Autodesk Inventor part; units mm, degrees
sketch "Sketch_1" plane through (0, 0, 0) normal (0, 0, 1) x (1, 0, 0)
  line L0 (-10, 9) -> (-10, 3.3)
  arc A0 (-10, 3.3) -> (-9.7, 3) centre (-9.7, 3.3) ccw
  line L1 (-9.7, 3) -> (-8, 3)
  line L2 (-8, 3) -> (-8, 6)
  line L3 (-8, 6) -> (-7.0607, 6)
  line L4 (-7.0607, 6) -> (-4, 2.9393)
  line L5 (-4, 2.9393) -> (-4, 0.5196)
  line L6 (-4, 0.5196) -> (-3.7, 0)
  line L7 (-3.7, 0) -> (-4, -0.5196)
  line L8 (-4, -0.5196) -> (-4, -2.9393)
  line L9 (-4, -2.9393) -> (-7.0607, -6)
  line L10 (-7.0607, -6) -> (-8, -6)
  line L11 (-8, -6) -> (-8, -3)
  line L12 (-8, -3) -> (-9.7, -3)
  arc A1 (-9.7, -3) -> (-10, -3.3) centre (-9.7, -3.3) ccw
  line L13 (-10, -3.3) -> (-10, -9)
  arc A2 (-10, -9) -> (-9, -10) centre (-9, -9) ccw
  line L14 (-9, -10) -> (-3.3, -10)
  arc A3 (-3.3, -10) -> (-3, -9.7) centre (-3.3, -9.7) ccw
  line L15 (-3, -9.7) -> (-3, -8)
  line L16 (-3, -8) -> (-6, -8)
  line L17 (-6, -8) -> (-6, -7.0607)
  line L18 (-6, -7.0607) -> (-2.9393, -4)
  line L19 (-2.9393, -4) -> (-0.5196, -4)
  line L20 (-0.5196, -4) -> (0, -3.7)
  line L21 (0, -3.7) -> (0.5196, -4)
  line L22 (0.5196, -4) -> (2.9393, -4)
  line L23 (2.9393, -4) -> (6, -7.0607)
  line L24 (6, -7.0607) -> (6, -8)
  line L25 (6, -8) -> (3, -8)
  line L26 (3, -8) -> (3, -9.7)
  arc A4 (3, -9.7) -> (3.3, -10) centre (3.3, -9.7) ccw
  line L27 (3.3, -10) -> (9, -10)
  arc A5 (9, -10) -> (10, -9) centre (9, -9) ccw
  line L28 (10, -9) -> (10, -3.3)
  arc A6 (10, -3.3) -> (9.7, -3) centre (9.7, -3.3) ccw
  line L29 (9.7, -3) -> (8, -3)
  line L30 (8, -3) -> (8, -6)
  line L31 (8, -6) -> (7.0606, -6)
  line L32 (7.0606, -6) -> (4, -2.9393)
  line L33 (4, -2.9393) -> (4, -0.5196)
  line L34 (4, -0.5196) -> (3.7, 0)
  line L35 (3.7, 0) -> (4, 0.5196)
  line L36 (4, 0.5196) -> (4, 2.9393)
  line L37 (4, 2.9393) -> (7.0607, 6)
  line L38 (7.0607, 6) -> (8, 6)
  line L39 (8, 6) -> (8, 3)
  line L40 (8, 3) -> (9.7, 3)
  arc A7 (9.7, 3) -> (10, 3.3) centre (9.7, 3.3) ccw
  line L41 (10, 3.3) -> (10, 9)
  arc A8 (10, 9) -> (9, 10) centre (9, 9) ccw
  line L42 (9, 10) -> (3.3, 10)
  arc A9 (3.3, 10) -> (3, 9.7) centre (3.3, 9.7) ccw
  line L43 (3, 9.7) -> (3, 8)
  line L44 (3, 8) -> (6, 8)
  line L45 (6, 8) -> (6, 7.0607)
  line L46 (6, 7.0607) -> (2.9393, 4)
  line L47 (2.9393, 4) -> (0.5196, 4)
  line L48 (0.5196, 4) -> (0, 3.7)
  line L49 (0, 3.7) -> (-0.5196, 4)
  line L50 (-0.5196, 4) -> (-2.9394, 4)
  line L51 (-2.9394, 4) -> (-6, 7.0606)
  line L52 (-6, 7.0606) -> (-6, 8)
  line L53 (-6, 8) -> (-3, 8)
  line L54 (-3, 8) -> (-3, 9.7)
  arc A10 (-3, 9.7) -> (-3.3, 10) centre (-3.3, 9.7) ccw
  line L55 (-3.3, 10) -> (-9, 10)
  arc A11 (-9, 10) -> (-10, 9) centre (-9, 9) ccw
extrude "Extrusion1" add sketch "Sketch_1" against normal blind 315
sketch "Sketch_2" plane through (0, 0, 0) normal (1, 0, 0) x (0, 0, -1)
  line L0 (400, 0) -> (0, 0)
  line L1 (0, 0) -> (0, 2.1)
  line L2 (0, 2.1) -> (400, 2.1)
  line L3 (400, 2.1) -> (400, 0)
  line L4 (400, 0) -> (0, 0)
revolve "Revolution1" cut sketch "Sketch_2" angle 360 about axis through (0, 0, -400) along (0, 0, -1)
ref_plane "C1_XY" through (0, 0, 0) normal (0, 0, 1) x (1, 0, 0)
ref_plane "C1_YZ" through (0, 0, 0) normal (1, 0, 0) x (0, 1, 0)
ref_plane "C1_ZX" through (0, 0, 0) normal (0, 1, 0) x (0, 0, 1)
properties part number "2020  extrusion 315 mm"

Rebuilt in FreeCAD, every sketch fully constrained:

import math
import FreeCAD as App
import Part
import Sketcher
Q = App.Units.Quantity


def add_polygon(sketch, points):
    """Adds a closed chain of lines whose ends are joined by coincident constraints."""
    first, n = sketch.GeometryCount, len(points)
    for a, b in zip(points, points[1:] + points[:1]):
        sketch.addGeometry(Part.LineSegment(App.Vector(*a, 0), App.Vector(*b, 0)), False)
    for i in range(n):
        sketch.addConstraint(Sketcher.Constraint("Coincident", first + i, 2, first + (i + 1) % n, 1))

doc = App.newDocument("Part")
params = doc.addObject("Spreadsheet::Sheet", "Params")
for row, (alias, value) in enumerate([
    ("sketch1_radius", "1 mm"),
    ("sketch1_radius2", "0.3 mm"),
    ("sketch1_width", "3 mm"),
    ("sketch1_width2", "1.7 mm"),
    ("sketch1_width3", "5.7 mm"),
    ("pad1_length", "315 mm"),
    ("sketch2_height", "400 mm"),
    ("sketch2_width", "2.1 mm"),
    ("groove_angle", "360 deg"),
], start=1):
    params.set(f"A{row}", alias)
    params.set(f"B{row}", "=" + value)
    params.setAlias(f"B{row}", alias)

body = doc.addObject("PartDesign::Body", "Body")

sketch1 = body.newObject("Sketcher::SketchObject", "Sketch")
sketch1.AttachmentSupport = (doc.getObject("XY_Plane"), [""])
sketch1.MapMode = "FlatFace"
sketch1.addGeometry([
    Part.ArcOfCircle(Part.Circle(App.Vector(-9, 9, 0), App.Vector(0, 0, 1), 1), math.radians(90), math.radians(180)),
    Part.LineSegment(App.Vector(-10, 9, 0), App.Vector(-10, 3.3, 0)),
    Part.ArcOfCircle(Part.Circle(App.Vector(-9.7, 3.3, 0), App.Vector(0, 0, 1), 0.3), math.radians(180), math.radians(270)),
    Part.LineSegment(App.Vector(-9.7, 3, 0), App.Vector(-8, 3, 0)),
    Part.LineSegment(App.Vector(-8, 3, 0), App.Vector(-8, 6, 0)),
    Part.LineSegment(App.Vector(-8, 6, 0), App.Vector(-7.0607, 6, 0)),
    Part.LineSegment(App.Vector(-7.0607, 6, 0), App.Vector(-4, 2.9393, 0)),
    Part.LineSegment(App.Vector(-4, 2.9393, 0), App.Vector(-4, 0.5196, 0)),
    Part.LineSegment(App.Vector(-4, 0.5196, 0), App.Vector(-3.7, 0, 0)),
    Part.LineSegment(App.Vector(-3.7, 0, 0), App.Vector(-4, -0.5196, 0)),
    Part.LineSegment(App.Vector(-4, -0.5196, 0), App.Vector(-4, -2.9393, 0)),
    Part.LineSegment(App.Vector(-4, -2.9393, 0), App.Vector(-7.0607, -6, 0)),
    Part.LineSegment(App.Vector(-7.0607, -6, 0), App.Vector(-8, -6, 0)),
    Part.LineSegment(App.Vector(-8, -6, 0), App.Vector(-8, -3, 0)),
    Part.LineSegment(App.Vector(-8, -3, 0), App.Vector(-9.7, -3, 0)),
    Part.ArcOfCircle(Part.Circle(App.Vector(-9.7, -3.3, 0), App.Vector(0, 0, 1), 0.3), math.radians(90), math.radians(180)),
    Part.LineSegment(App.Vector(-10, -3.3, 0), App.Vector(-10, -9, 0)),
    Part.ArcOfCircle(Part.Circle(App.Vector(-9, -9, 0), App.Vector(0, 0, 1), 1), math.radians(180), math.radians(270)),
    Part.LineSegment(App.Vector(-9, -10, 0), App.Vector(-3.3, -10, 0)),
    Part.ArcOfCircle(Part.Circle(App.Vector(-3.3, -9.7, 0), App.Vector(0, 0, 1), 0.3), math.radians(-90), math.radians(0)),
    Part.LineSegment(App.Vector(-3, -9.7, 0), App.Vector(-3, -8, 0)),
    Part.LineSegment(App.Vector(-3, -8, 0), App.Vector(-6, -8, 0)),
    Part.LineSegment(App.Vector(-6, -8, 0), App.Vector(-6, -7.0607, 0)),
    Part.LineSegment(App.Vector(-6, -7.0607, 0), App.Vector(-2.9393, -4, 0)),
    Part.LineSegment(App.Vector(-2.9393, -4, 0), App.Vector(-0.5196, -4, 0)),
    Part.LineSegment(App.Vector(-0.5196, -4, 0), App.Vector(0, -3.7, 0)),
    Part.LineSegment(App.Vector(0, -3.7, 0), App.Vector(0.5196, -4, 0)),
    Part.LineSegment(App.Vector(0.5196, -4, 0), App.Vector(2.9393, -4, 0)),
    Part.LineSegment(App.Vector(2.9393, -4, 0), App.Vector(6, -7.0607, 0)),
    Part.LineSegment(App.Vector(6, -7.0607, 0), App.Vector(6, -8, 0)),
    Part.LineSegment(App.Vector(6, -8, 0), App.Vector(3, -8, 0)),
    Part.LineSegment(App.Vector(3, -8, 0), App.Vector(3, -9.7, 0)),
    Part.ArcOfCircle(Part.Circle(App.Vector(3.3, -9.7, 0), App.Vector(0, 0, 1), 0.3), math.radians(180), math.radians(270)),
    Part.LineSegment(App.Vector(3.3, -10, 0), App.Vector(9, -10, 0)),
    Part.ArcOfCircle(Part.Circle(App.Vector(9, -9, 0), App.Vector(0, 0, 1), 1), math.radians(-90), math.radians(0)),
    Part.LineSegment(App.Vector(10, -9, 0), App.Vector(10, -3.3, 0)),
    Part.ArcOfCircle(Part.Circle(App.Vector(9.7, -3.3, 0), App.Vector(0, 0, 1), 0.3), math.radians(0), math.radians(90)),
    Part.LineSegment(App.Vector(9.7, -3, 0), App.Vector(8, -3, 0)),
    Part.LineSegment(App.Vector(8, -3, 0), App.Vector(8, -6, 0)),
    Part.LineSegment(App.Vector(8, -6, 0), App.Vector(7.0606, -6, 0)),
    Part.LineSegment(App.Vector(7.0606, -6, 0), App.Vector(4, -2.9393, 0)),
    Part.LineSegment(App.Vector(4, -2.9393, 0), App.Vector(4, -0.5196, 0)),
    Part.LineSegment(App.Vector(4, -0.5196, 0), App.Vector(3.7, 0, 0)),
    Part.LineSegment(App.Vector(3.7, 0, 0), App.Vector(4, 0.5196, 0)),
    Part.LineSegment(App.Vector(4, 0.5196, 0), App.Vector(4, 2.9393, 0)),
    Part.LineSegment(App.Vector(4, 2.9393, 0), App.Vector(7.0607, 6, 0)),
    Part.LineSegment(App.Vector(7.0607, 6, 0), App.Vector(8, 6, 0)),
    Part.LineSegment(App.Vector(8, 6, 0), App.Vector(8, 3, 0)),
    Part.LineSegment(App.Vector(8, 3, 0), App.Vector(9.7, 3, 0)),
    Part.ArcOfCircle(Part.Circle(App.Vector(9.7, 3.3, 0), App.Vector(0, 0, 1), 0.3), math.radians(-90), math.radians(0)),
    Part.LineSegment(App.Vector(10, 3.3, 0), App.Vector(10, 9, 0)),
    Part.ArcOfCircle(Part.Circle(App.Vector(9, 9, 0), App.Vector(0, 0, 1), 1), math.radians(0), math.radians(90)),
    Part.LineSegment(App.Vector(9, 10, 0), App.Vector(3.3, 10, 0)),
    Part.ArcOfCircle(Part.Circle(App.Vector(3.3, 9.7, 0), App.Vector(0, 0, 1), 0.3), math.radians(90), math.radians(180)),
    Part.LineSegment(App.Vector(3, 9.7, 0), App.Vector(3, 8, 0)),
    Part.LineSegment(App.Vector(3, 8, 0), App.Vector(6, 8, 0)),
    Part.LineSegment(App.Vector(6, 8, 0), App.Vector(6, 7.0607, 0)),
    Part.LineSegment(App.Vector(6, 7.0607, 0), App.Vector(2.9393, 4, 0)),
    Part.LineSegment(App.Vector(2.9393, 4, 0), App.Vector(0.5196, 4, 0)),
    Part.LineSegment(App.Vector(0.5196, 4, 0), App.Vector(0, 3.7, 0)),
    Part.LineSegment(App.Vector(0, 3.7, 0), App.Vector(-0.5196, 4, 0)),
    Part.LineSegment(App.Vector(-0.5196, 4, 0), App.Vector(-2.9394, 4, 0)),
    Part.LineSegment(App.Vector(-2.9394, 4, 0), App.Vector(-6, 7.0606, 0)),
    Part.LineSegment(App.Vector(-6, 7.0606, 0), App.Vector(-6, 8, 0)),
    Part.LineSegment(App.Vector(-6, 8, 0), App.Vector(-3, 8, 0)),
    Part.LineSegment(App.Vector(-3, 8, 0), App.Vector(-3, 9.7, 0)),
    Part.ArcOfCircle(Part.Circle(App.Vector(-3.3, 9.7, 0), App.Vector(0, 0, 1), 0.3), math.radians(0), math.radians(90)),
    Part.LineSegment(App.Vector(-3.3, 10, 0), App.Vector(-9, 10, 0)),
], False)
sketch1.addConstraint([
    Sketcher.Constraint("Tangent", 0, 2, 1, 1),
    Sketcher.Constraint("Tangent", 1, 2, 2, 1),
    Sketcher.Constraint("Tangent", 2, 2, 3, 1),
    Sketcher.Constraint("Coincident", 3, 2, 4, 1),
    Sketcher.Constraint("Coincident", 4, 2, 5, 1),
    Sketcher.Constraint("Coincident", 5, 2, 6, 1),
    Sketcher.Constraint("Coincident", 6, 2, 7, 1),
    Sketcher.Constraint("Coincident", 7, 2, 8, 1),
    Sketcher.Constraint("Coincident", 8, 2, 9, 1),
    Sketcher.Constraint("Coincident", 9, 2, 10, 1),
    Sketcher.Constraint("Coincident", 10, 2, 11, 1),
    Sketcher.Constraint("Coincident", 11, 2, 12, 1),
    Sketcher.Constraint("Coincident", 12, 2, 13, 1),
    Sketcher.Constraint("Coincident", 13, 2, 14, 1),
    Sketcher.Constraint("Tangent", 14, 2, 15, 1),
    Sketcher.Constraint("Tangent", 15, 2, 16, 1),
    Sketcher.Constraint("Tangent", 16, 2, 17, 1),
    Sketcher.Constraint("Tangent", 17, 2, 18, 1),
    Sketcher.Constraint("Tangent", 18, 2, 19, 1),
    Sketcher.Constraint("Tangent", 19, 2, 20, 1),
    Sketcher.Constraint("Coincident", 20, 2, 21, 1),
    Sketcher.Constraint("Coincident", 21, 2, 22, 1),
    Sketcher.Constraint("Coincident", 22, 2, 23, 1),
    Sketcher.Constraint("Coincident", 23, 2, 24, 1),
    Sketcher.Constraint("Coincident", 24, 2, 25, 1),
    Sketcher.Constraint("Coincident", 25, 2, 26, 1),
    Sketcher.Constraint("Coincident", 26, 2, 27, 1),
    Sketcher.Constraint("Coincident", 27, 2, 28, 1),
    Sketcher.Constraint("Coincident", 28, 2, 29, 1),
    Sketcher.Constraint("Coincident", 29, 2, 30, 1),
    Sketcher.Constraint("Coincident", 30, 2, 31, 1),
    Sketcher.Constraint("Tangent", 31, 2, 32, 1),
    Sketcher.Constraint("Tangent", 32, 2, 33, 1),
    Sketcher.Constraint("Tangent", 33, 2, 34, 1),
    Sketcher.Constraint("Tangent", 34, 2, 35, 1),
    Sketcher.Constraint("Tangent", 35, 2, 36, 1),
    Sketcher.Constraint("Tangent", 36, 2, 37, 1),
    Sketcher.Constraint("Coincident", 37, 2, 38, 1),
    Sketcher.Constraint("Coincident", 38, 2, 39, 1),
    Sketcher.Constraint("Coincident", 39, 2, 40, 1),
    Sketcher.Constraint("Coincident", 40, 2, 41, 1),
    Sketcher.Constraint("Coincident", 41, 2, 42, 1),
    Sketcher.Constraint("Coincident", 42, 2, 43, 1),
    Sketcher.Constraint("Coincident", 43, 2, 44, 1),
    Sketcher.Constraint("Coincident", 44, 2, 45, 1),
    Sketcher.Constraint("Coincident", 45, 2, 46, 1),
    Sketcher.Constraint("Coincident", 46, 2, 47, 1),
    Sketcher.Constraint("Coincident", 47, 2, 48, 1),
    Sketcher.Constraint("Tangent", 48, 2, 49, 1),
    Sketcher.Constraint("Tangent", 49, 2, 50, 1),
    Sketcher.Constraint("Tangent", 50, 2, 51, 1),
    Sketcher.Constraint("Tangent", 51, 2, 52, 1),
    Sketcher.Constraint("Tangent", 52, 2, 53, 1),
    Sketcher.Constraint("Tangent", 53, 2, 54, 1),
    Sketcher.Constraint("Coincident", 54, 2, 55, 1),
    Sketcher.Constraint("Coincident", 55, 2, 56, 1),
    Sketcher.Constraint("Coincident", 56, 2, 57, 1),
    Sketcher.Constraint("Coincident", 57, 2, 58, 1),
    Sketcher.Constraint("Coincident", 58, 2, 59, 1),
    Sketcher.Constraint("Coincident", 59, 2, 60, 1),
    Sketcher.Constraint("Coincident", 60, 2, 61, 1),
    Sketcher.Constraint("Coincident", 61, 2, 62, 1),
    Sketcher.Constraint("Coincident", 62, 2, 63, 1),
    Sketcher.Constraint("Coincident", 63, 2, 64, 1),
    Sketcher.Constraint("Coincident", 64, 2, 65, 1),
    Sketcher.Constraint("Tangent", 65, 2, 66, 1),
    Sketcher.Constraint("Tangent", 66, 2, 67, 1),
    Sketcher.Constraint("Tangent", 67, 2, 0, 1),
    Sketcher.Constraint("Vertical", 1),
    Sketcher.Constraint("Horizontal", 3),
    Sketcher.Constraint("Vertical", 4),
    Sketcher.Constraint("Horizontal", 5),
    Sketcher.Constraint("Vertical", 7),
    Sketcher.Constraint("Vertical", 10),
    Sketcher.Constraint("Horizontal", 12),
    Sketcher.Constraint("Vertical", 13),
    Sketcher.Constraint("Horizontal", 14),
    Sketcher.Constraint("Vertical", 16),
    Sketcher.Constraint("Horizontal", 18),
    Sketcher.Constraint("Vertical", 20),
    Sketcher.Constraint("Horizontal", 21),
    Sketcher.Constraint("Vertical", 22),
    Sketcher.Constraint("Horizontal", 24),
    Sketcher.Constraint("Horizontal", 27),
    Sketcher.Constraint("Vertical", 29),
    Sketcher.Constraint("Horizontal", 30),
    Sketcher.Constraint("Vertical", 31),
    Sketcher.Constraint("Horizontal", 33),
    Sketcher.Constraint("Vertical", 35),
    Sketcher.Constraint("Horizontal", 37),
    Sketcher.Constraint("Vertical", 38),
    Sketcher.Constraint("Horizontal", 39),
    Sketcher.Constraint("Vertical", 41),
    Sketcher.Constraint("Vertical", 44),
    Sketcher.Constraint("Horizontal", 46),
    Sketcher.Constraint("Vertical", 47),
    Sketcher.Constraint("Horizontal", 48),
    Sketcher.Constraint("Vertical", 50),
    Sketcher.Constraint("Horizontal", 52),
    Sketcher.Constraint("Vertical", 54),
    Sketcher.Constraint("Horizontal", 55),
    Sketcher.Constraint("Vertical", 56),
    Sketcher.Constraint("Horizontal", 58),
    Sketcher.Constraint("Horizontal", 61),
    Sketcher.Constraint("Vertical", 63),
    Sketcher.Constraint("Horizontal", 64),
    Sketcher.Constraint("Vertical", 65),
    Sketcher.Constraint("Horizontal", 67),
    Sketcher.Constraint("Equal", 2, 15),
    Sketcher.Constraint("Equal", 0, 17),
    Sketcher.Constraint("Equal", 15, 19),
    Sketcher.Constraint("Equal", 19, 32),
    Sketcher.Constraint("Equal", 17, 34),
    Sketcher.Constraint("Equal", 32, 36),
    Sketcher.Constraint("Equal", 36, 49),
    Sketcher.Constraint("Equal", 34, 51),
    Sketcher.Constraint("Equal", 49, 53),
    Sketcher.Constraint("Equal", 53, 66),
    Sketcher.Constraint("Symmetric", 0, 3, 34, 3, -1, 1),
    Sketcher.Constraint("Symmetric", 15, 3, 49, 3, -1, 1),
    Sketcher.Constraint("Symmetric", 19, 3, 53, 3, -1, 1),
    Sketcher.Constraint("Symmetric", 3, 2, 37, 2, -1, 1),
    Sketcher.Constraint("Symmetric", 5, 2, 39, 2, -1, 1),
    Sketcher.Constraint("Symmetric", 6, 2, 40, 2, -1, 1),
    Sketcher.Constraint("Symmetric", 8, 2, 42, 2, -1, 1),
    Sketcher.Constraint("Symmetric", 9, 2, 43, 2, -1, 1),
    Sketcher.Constraint("Symmetric", 11, 2, 45, 2, -1, 1),
    Sketcher.Constraint("Symmetric", 21, 2, 55, 2, -1, 1),
    Sketcher.Constraint("Symmetric", 23, 2, 57, 2, -1, 1),
    Sketcher.Constraint("Symmetric", 25, 2, 59, 2, -1, 1),
    Sketcher.Constraint("Symmetric", 26, 2, 60, 2, -1, 1),
    Sketcher.Constraint("Symmetric", 28, 2, 62, 2, -1, 1),
    Sketcher.Constraint("Symmetric", 30, 2, 64, 2, -1, 1),
    Sketcher.Constraint("Symmetric", 19, 3, 32, 3, -2),
    Sketcher.Constraint("Symmetric", 15, 3, 36, 3, -2),
    Sketcher.Constraint("Symmetric", 24, 2, 26, 2, -2),
    Sketcher.Constraint("Symmetric", 22, 2, 28, 2, -2),
    Sketcher.Constraint("Symmetric", 12, 2, 38, 2, -2),
    Sketcher.Constraint("Symmetric", 10, 2, 40, 2, -2),
    Sketcher.Constraint("PointOnObject", 8, 2, -1),
    Sketcher.Constraint("PointOnObject", 25, 2, -2),
    Sketcher.Constraint("Perpendicular", 6, 11),
    Sketcher.Constraint("Parallel", 11, 23),
    Sketcher.Constraint("Perpendicular", 8, 25),
    Sketcher.Constraint("Perpendicular", 9, 26),
    Sketcher.Constraint("Perpendicular", 23, 28),
    Sketcher.Constraint("Perpendicular", 25, 42),
    Sketcher.Constraint("Perpendicular", 40, 45),
    Sketcher.Constraint("Parallel", 45, 57),
    Sketcher.Constraint("Perpendicular", 42, 59),
    Sketcher.Constraint("Perpendicular", 57, 62),
    Sketcher.Constraint("Horizontal", 21, 2, 29, 2),
    Sketcher.Constraint("Vertical", 5, 2, 11, 2),
    Sketcher.Constraint("Vertical", 38, 2, 46, 2),
    Sketcher.Constraint("Equal", 67, 1),
    Sketcher.Constraint("Equal", 64, 4),
    Sketcher.Constraint("Equal", 61, 7),
    Sketcher.Constraint("Equal", 48, 20),
    Sketcher.Constraint("Equal", 46, 22),
    Sketcher.Constraint("Equal", 11, 23),
    Sketcher.Constraint("Equal", 9, 25),
    Sketcher.Constraint("Radius", 0, Q("1 mm")),
    Sketcher.Constraint("Radius", 2, Q("0.3 mm")),
    Sketcher.Constraint("DistanceX", 21, 2, 21, 1, Q("3 mm")),
    Sketcher.Constraint("Angle", 8, Q("-59.9993 deg")),
    Sketcher.Constraint("DistanceX", 3, 1, 3, 2, Q("1.7 mm")),
    Sketcher.Constraint("DistanceX", 18, 1, 18, 2, Q("5.7 mm")),
    Sketcher.Constraint("DistanceX", 0, 3, -1, 1, Q("9 mm")),
    Sketcher.Constraint("DistanceX", 6, 2, -1, 1, Q("4 mm")),
    Sketcher.Constraint("Distance", 8, Q("0.6 mm")),
    Sketcher.Constraint("DistanceX", 5, 1, 5, 2, Q("0.9393 mm")),
])
sketch1.setExpression("Constraints[161]", "Params.sketch1_radius")
sketch1.setExpression("Constraints[162]", "Params.sketch1_radius2")
sketch1.setExpression("Constraints[163]", "Params.sketch1_width")
sketch1.setExpression("Constraints[165]", "Params.sketch1_width2")
sketch1.setExpression("Constraints[166]", "Params.sketch1_width3")
pad1 = body.newObject("PartDesign::Pad", "Pad")
pad1.Profile = sketch1
pad1.setExpression("Length", "Params.pad1_length")
pad1.Reversed = True

sketch2 = body.newObject("Sketcher::SketchObject", "Sketch001")
sketch2.AttachmentSupport = (doc.getObject("YZ_Plane"), [""])
sketch2.MapMode = "FlatFace"
add_polygon(sketch2, [(0, 0), (0, -400), (2.1, -400), (2.1, 0)])
sketch2.addConstraint([
    Sketcher.Constraint("Vertical", 0),
    Sketcher.Constraint("Horizontal", 1),
    Sketcher.Constraint("Vertical", 2),
    Sketcher.Constraint("Horizontal", 3),
    Sketcher.Constraint("Coincident", 3, 2, -1, 1),
    Sketcher.Constraint("DistanceY", 0, 2, 0, 1, Q("400 mm")),
    Sketcher.Constraint("DistanceX", 1, 1, 1, 2, Q("2.1 mm")),
])
sketch2.setExpression("Constraints[9]", "Params.sketch2_height")
sketch2.setExpression("Constraints[10]", "Params.sketch2_width")
groove = body.newObject("PartDesign::Groove", "Groove")
groove.Profile = sketch2
groove.ReferenceAxis = (sketch2, ["V_Axis"])
groove.setExpression("Angle", "Params.groove_angle")

doc.recompute()
